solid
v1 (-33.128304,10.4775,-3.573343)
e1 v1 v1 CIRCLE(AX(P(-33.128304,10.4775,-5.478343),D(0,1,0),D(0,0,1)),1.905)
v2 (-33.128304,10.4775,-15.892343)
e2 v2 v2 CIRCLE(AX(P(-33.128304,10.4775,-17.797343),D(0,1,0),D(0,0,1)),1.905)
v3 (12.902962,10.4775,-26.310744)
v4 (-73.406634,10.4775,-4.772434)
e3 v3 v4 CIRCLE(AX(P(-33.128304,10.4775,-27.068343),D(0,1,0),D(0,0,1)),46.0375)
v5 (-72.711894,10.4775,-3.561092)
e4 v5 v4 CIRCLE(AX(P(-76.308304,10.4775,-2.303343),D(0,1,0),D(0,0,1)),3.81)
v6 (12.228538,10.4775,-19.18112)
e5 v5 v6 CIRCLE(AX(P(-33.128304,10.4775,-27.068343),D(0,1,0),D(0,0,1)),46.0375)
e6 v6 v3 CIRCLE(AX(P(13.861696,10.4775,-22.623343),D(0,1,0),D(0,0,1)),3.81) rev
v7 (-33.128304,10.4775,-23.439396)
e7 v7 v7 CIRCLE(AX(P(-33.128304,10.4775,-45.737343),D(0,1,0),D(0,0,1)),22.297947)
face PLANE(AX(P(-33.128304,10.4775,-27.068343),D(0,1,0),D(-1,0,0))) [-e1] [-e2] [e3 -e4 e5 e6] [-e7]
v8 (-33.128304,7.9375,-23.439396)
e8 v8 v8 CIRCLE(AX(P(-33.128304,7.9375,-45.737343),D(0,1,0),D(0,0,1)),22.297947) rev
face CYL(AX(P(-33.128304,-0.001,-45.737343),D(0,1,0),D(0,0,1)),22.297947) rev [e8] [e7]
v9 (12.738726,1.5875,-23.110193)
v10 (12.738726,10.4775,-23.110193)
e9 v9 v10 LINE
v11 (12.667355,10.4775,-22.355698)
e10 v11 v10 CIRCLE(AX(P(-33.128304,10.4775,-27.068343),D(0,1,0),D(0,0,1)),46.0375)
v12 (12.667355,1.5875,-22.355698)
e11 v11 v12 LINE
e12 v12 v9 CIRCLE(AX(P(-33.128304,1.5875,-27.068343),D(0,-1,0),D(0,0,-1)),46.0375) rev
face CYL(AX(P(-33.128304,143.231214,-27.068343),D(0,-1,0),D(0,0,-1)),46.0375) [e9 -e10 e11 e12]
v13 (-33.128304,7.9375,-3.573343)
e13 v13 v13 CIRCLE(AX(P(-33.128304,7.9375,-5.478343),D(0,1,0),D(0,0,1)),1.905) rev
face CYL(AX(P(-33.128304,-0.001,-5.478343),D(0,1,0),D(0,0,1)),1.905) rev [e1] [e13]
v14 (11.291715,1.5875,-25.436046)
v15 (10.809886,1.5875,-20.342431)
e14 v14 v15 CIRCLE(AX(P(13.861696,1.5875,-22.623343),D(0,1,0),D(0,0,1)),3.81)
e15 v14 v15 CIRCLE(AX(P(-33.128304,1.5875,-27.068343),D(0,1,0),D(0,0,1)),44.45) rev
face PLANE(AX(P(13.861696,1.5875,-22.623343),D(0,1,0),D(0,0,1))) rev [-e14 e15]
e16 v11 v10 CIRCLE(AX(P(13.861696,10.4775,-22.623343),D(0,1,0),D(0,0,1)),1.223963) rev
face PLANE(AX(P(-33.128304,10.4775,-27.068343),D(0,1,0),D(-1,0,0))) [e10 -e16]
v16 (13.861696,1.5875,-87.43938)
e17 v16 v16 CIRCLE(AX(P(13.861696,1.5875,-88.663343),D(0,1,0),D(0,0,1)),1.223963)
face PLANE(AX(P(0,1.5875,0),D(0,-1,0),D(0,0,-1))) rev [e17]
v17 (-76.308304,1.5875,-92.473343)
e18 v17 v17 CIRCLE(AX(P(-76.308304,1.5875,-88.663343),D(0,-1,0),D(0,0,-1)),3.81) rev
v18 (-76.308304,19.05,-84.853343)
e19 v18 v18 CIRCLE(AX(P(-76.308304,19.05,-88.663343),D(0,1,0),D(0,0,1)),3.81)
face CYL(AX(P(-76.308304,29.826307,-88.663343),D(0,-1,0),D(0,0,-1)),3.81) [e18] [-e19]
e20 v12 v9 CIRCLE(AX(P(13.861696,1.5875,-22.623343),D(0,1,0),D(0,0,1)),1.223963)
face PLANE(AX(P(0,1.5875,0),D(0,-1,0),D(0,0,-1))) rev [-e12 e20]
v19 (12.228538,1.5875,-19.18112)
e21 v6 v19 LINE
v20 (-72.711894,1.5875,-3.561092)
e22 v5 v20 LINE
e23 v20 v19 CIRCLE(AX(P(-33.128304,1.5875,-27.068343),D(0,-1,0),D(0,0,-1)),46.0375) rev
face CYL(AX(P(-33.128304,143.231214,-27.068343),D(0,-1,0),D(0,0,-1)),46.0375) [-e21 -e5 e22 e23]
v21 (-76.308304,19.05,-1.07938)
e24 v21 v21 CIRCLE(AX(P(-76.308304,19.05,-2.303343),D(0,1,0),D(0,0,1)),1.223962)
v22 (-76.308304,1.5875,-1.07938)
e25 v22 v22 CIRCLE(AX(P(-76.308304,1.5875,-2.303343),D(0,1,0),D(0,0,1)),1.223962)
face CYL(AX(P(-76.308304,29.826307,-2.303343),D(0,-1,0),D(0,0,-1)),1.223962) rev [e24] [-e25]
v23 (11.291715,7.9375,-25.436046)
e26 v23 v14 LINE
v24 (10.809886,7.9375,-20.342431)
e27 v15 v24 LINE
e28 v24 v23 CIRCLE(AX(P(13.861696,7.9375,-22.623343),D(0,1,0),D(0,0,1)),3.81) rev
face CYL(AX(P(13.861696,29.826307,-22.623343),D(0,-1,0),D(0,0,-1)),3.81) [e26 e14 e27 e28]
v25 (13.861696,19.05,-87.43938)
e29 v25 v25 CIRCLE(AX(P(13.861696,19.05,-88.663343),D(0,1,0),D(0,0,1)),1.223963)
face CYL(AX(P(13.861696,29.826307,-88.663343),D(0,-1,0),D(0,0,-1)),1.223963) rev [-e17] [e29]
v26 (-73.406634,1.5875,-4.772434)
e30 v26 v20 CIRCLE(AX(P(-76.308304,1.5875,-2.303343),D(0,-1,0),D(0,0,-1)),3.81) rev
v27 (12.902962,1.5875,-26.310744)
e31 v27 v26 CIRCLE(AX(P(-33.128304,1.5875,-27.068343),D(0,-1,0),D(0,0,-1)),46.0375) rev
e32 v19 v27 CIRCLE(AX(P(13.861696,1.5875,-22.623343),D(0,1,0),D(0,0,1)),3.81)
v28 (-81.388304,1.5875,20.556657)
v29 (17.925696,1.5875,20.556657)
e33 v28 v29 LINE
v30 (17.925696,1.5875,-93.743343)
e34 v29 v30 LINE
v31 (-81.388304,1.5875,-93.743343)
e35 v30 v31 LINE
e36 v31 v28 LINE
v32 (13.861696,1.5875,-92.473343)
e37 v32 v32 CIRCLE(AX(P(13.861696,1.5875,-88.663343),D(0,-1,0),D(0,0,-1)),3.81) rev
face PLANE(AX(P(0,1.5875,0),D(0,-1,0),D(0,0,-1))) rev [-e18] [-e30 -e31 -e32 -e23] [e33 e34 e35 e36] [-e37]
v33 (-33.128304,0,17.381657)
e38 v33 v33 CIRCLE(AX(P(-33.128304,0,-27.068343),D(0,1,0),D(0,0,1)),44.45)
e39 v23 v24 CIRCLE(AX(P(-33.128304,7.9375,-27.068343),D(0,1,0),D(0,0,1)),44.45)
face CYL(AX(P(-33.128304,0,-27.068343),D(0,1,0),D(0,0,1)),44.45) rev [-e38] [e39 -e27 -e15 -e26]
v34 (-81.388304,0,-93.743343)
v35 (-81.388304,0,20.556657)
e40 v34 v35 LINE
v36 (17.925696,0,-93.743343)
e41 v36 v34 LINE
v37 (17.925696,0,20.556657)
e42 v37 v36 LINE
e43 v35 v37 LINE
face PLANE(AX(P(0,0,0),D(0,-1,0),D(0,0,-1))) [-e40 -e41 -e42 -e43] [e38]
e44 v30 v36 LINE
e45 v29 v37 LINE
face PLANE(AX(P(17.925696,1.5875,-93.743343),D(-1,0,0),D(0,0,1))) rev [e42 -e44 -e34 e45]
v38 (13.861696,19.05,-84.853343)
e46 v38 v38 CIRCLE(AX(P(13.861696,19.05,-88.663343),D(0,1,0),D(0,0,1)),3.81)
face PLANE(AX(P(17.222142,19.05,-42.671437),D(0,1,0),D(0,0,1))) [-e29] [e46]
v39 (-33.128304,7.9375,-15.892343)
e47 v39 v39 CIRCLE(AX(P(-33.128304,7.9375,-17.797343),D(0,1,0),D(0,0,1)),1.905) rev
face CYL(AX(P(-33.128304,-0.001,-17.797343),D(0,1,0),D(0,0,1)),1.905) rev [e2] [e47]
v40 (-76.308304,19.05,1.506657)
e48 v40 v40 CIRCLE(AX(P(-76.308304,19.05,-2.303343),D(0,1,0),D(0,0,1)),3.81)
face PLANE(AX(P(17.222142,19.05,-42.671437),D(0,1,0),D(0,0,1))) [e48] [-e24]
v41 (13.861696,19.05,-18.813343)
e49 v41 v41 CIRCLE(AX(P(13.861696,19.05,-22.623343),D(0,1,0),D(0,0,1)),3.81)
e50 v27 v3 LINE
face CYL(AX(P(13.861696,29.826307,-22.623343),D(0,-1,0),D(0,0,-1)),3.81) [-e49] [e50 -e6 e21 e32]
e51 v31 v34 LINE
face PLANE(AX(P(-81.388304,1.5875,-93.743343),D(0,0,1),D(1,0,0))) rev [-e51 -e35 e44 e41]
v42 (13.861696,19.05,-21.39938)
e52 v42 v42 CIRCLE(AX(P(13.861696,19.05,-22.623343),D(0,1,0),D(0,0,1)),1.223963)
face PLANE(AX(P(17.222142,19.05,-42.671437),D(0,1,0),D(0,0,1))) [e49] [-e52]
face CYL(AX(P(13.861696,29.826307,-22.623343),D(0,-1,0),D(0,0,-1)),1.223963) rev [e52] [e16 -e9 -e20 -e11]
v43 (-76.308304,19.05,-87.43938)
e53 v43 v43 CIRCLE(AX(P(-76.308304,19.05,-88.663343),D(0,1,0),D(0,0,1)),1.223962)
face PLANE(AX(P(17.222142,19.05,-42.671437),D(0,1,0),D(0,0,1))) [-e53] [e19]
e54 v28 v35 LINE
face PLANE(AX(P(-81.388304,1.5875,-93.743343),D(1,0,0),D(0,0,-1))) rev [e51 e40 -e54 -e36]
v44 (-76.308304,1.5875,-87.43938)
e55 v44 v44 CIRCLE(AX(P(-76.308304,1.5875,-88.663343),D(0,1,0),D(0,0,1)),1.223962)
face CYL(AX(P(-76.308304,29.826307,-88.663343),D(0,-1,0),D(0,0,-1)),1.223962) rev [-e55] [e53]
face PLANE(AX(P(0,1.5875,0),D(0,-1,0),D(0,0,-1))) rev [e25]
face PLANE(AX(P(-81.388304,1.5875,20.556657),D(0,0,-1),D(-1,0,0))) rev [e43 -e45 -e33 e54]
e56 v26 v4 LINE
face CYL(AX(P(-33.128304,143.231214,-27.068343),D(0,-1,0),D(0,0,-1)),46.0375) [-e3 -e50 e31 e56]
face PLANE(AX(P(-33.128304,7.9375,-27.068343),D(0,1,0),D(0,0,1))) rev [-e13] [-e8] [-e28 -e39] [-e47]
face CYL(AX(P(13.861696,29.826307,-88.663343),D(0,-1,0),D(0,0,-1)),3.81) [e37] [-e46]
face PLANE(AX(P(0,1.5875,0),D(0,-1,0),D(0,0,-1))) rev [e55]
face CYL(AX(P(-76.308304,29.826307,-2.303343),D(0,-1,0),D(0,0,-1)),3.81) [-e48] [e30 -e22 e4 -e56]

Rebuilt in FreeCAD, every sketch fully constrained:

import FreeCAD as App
import Part
import Sketcher
Q = App.Units.Quantity

doc = App.newDocument("Part")
body = doc.addObject("PartDesign::Body", "Body")

sketch1 = body.newObject("Sketcher::SketchObject", "Sketch")
sketch1.AttachmentSupport = (doc.getObject("XZ_Plane"), [""])
sketch1.MapMode = "FlatFace"
sketch1.addGeometry(Part.LineSegment(App.Vector(-81.388304, -93.743343, 0), App.Vector(-81.388304, 20.556657, 0)), False)
sketch1.addGeometry(Part.LineSegment(App.Vector(-81.388304, 20.556657, 0), App.Vector(17.925696, 20.556657, 0)), False)
sketch1.addGeometry(Part.LineSegment(App.Vector(17.925696, 20.556657, 0), App.Vector(17.925696, -93.743343, 0)), False)
sketch1.addGeometry(Part.LineSegment(App.Vector(17.925696, -93.743343, 0), App.Vector(-81.388304, -93.743343, 0)), False)
sketch1.addConstraint(Sketcher.Constraint("Coincident", 0, 2, 1, 1))
sketch1.addConstraint(Sketcher.Constraint("Coincident", 1, 2, 2, 1))
sketch1.addConstraint(Sketcher.Constraint("Coincident", 2, 2, 3, 1))
sketch1.addConstraint(Sketcher.Constraint("Coincident", 3, 2, 0, 1))
sketch1.addConstraint(Sketcher.Constraint("Vertical", 0))
sketch1.addConstraint(Sketcher.Constraint("Horizontal", 1))
sketch1.addConstraint(Sketcher.Constraint("Vertical", 2))
sketch1.addConstraint(Sketcher.Constraint("Horizontal", 3))
sketch1.addConstraint(Sketcher.Constraint("DistanceY", 0, 1, 0, 2, Q("4.5 in")))
sketch1.addConstraint(Sketcher.Constraint("DistanceX", 1, 1, 1, 2, Q("3.91 in")))
sketch1.addConstraint(Sketcher.Constraint("DistanceX", 0, 2, -1, 1, 81.388304))
sketch1.addConstraint(Sketcher.Constraint("DistanceY", -1, 1, 0, 2, 20.556657))
pad1 = body.newObject("PartDesign::Pad", "Pad")
pad1.Profile = sketch1
pad1.Length = Q("0.0625 in")
pad1.Reversed = True
body2 = doc.addObject("PartDesign::Body", "Body001")

sketch2 = body2.newObject("Sketcher::SketchObject", "Sketch001")
sketch2.AttachmentSupport = (doc.getObject("XZ_Plane001"), [""])
sketch2.MapMode = "FlatFace"
sketch2.addGeometry(Part.Circle(App.Vector(-33.128304, -27.068343, 0), App.Vector(0, 0, 1), 46.0375), False)
sketch2.addConstraint(Sketcher.Constraint("Diameter", 0, Q("3.625 in")))
sketch2.addConstraint(Sketcher.Constraint("DistanceX", 0, 3, -1, 1, 33.128304))
sketch2.addConstraint(Sketcher.Constraint("DistanceY", 0, 3, -1, 1, 27.068343))
pad2 = body2.newObject("PartDesign::Pad", "Pad001")
pad2.Profile = sketch2
pad2.Length = Q("0.4125 in")
pad2.Reversed = True
body3 = doc.addObject("PartDesign::Body", "Body002")

sketch3 = body3.newObject("Sketcher::SketchObject", "Sketch002")
sketch3.AttachmentSupport = (doc.getObject("XZ_Plane002"), [""])
sketch3.MapMode = "FlatFace"
sketch3.AttachmentOffset = App.Placement(App.Vector(0, 0, -0.3125 * 25.4), App.Rotation())
sketch3.addGeometry(Part.Circle(App.Vector(-33.128304, -27.068343, 0), App.Vector(0, 0, 1), 44.45), False)
sketch3.addConstraint(Sketcher.Constraint("Diameter", 0, Q("3.5 in")))
sketch3.addConstraint(Sketcher.Constraint("DistanceX", 0, 3, -1, 1, 33.128304))
sketch3.addConstraint(Sketcher.Constraint("DistanceY", 0, 3, -1, 1, 27.068343))
pad3 = body3.newObject("PartDesign::Pad", "Pad002")
pad3.Profile = sketch3
pad3.Length = 8.9375
doc.recompute()

body4 = doc.addObject("PartDesign::Body", "Body003")
body4.BaseFeature = body3
boolean = body.newObject("PartDesign::Boolean", "Boolean")
boolean.Type = "Cut"
boolean.addObjects([body4])
doc.recompute()

boolean2 = body2.newObject("PartDesign::Boolean", "Boolean001")
boolean2.Type = "Cut"
boolean2.addObjects([body3])

sketch4 = body2.newObject("Sketcher::SketchObject", "Sketch003")
sketch4.AttachmentSupport = (doc.getObject("XZ_Plane001"), [""])
sketch4.MapMode = "FlatFace"
sketch4.AttachmentOffset = App.Placement(App.Vector(0, 0, -0.4125 * 25.4), App.Rotation())
sketch4.addGeometry(Part.Circle(App.Vector(-33.128304, -17.797343, 0), App.Vector(0, 0, 1), 1.905), False)
sketch4.addGeometry(Part.Circle(App.Vector(-33.128304, -5.478343, 0), App.Vector(0, 0, 1), 1.905), False)
sketch4.addConstraint(Sketcher.Constraint("Equal", 0, 1))
sketch4.addConstraint(Sketcher.Constraint("Vertical", 0, 3, 1, 3))
sketch4.addConstraint(Sketcher.Constraint("Diameter", 0, Q("0.15 in")))
sketch4.addConstraint(Sketcher.Constraint("DistanceY", 0, 3, 1, 3, Q("0.485 in")))
sketch4.addConstraint(Sketcher.Constraint("DistanceX", 0, 3, -1, 1, 33.128304))
sketch4.addConstraint(Sketcher.Constraint("DistanceY", 0, 3, -1, 1, 17.797343))
pocket1 = body2.newObject("PartDesign::Pocket", "Pocket")
pocket1.Profile = sketch4
pocket1.Length = Q("0.1 in")
pocket1.Reversed = True
doc.recompute()

boolean3 = body.newObject("PartDesign::Boolean", "Boolean002")
boolean3.Type = "Fuse"
boolean3.addObjects([body2])

sketch5 = body.newObject("Sketcher::SketchObject", "Sketch004")
sketch5.AttachmentSupport = (doc.getObject("XZ_Plane"), [""])
sketch5.MapMode = "FlatFace"
sketch5.AttachmentOffset = App.Placement(App.Vector(0, 0, -0.0625 * 25.4), App.Rotation())
sketch5.addGeometry(Part.Circle(App.Vector(-76.308304, -2.303343, 0), App.Vector(0, 0, 1), 3.81), False)
sketch5.addGeometry(Part.Circle(App.Vector(-76.308304, -2.303343, 0), App.Vector(0, 0, 1), 1.223963), False)
sketch5.addGeometry(Part.Circle(App.Vector(13.861696, -22.623343, 0), App.Vector(0, 0, 1), 3.81), False)
sketch5.addGeometry(Part.Circle(App.Vector(13.861696, -22.623343, 0), App.Vector(0, 0, 1), 1.223963), False)
sketch5.addGeometry(Part.Circle(App.Vector(-76.308304, -88.663343, 0), App.Vector(0, 0, 1), 3.81), False)
sketch5.addGeometry(Part.Circle(App.Vector(-76.308304, -88.663343, 0), App.Vector(0, 0, 1), 1.223963), False)
sketch5.addGeometry(Part.Circle(App.Vector(13.861696, -88.663343, 0), App.Vector(0, 0, 1), 3.81), False)
sketch5.addGeometry(Part.Circle(App.Vector(13.861696, -88.663343, 0), App.Vector(0, 0, 1), 1.223963), False)
sketch5.addConstraint(Sketcher.Constraint("Coincident", 1, 3, 0, 3))
sketch5.addConstraint(Sketcher.Constraint("Coincident", 3, 3, 2, 3))
sketch5.addConstraint(Sketcher.Constraint("Coincident", 5, 3, 4, 3))
sketch5.addConstraint(Sketcher.Constraint("Coincident", 7, 3, 6, 3))
sketch5.addConstraint(Sketcher.Constraint("Equal", 0, 2))
sketch5.addConstraint(Sketcher.Constraint("Equal", 1, 3))
sketch5.addConstraint(Sketcher.Constraint("Equal", 2, 4))
sketch5.addConstraint(Sketcher.Constraint("Equal", 3, 5))
sketch5.addConstraint(Sketcher.Constraint("Equal", 4, 6))
sketch5.addConstraint(Sketcher.Constraint("Equal", 5, 7))
sketch5.addConstraint(Sketcher.Constraint("Horizontal", 5, 3, 6, 3))
sketch5.addConstraint(Sketcher.Constraint("Vertical", 1, 3, 4, 3))
sketch5.addConstraint(Sketcher.Constraint("Vertical", 3, 3, 6, 3))
sketch5.addConstraint(Sketcher.Constraint("Diameter", 0, Q("0.3 in")))
sketch5.addConstraint(Sketcher.Constraint("DistanceY", 2, 3, 0, 3, Q("0.8 in")))
sketch5.addConstraint(Sketcher.Constraint("DistanceY", 4, 3, 0, 3, Q("3.4 in")))
sketch5.addConstraint(Sketcher.Constraint("DistanceX", 0, 3, 2, 3, Q("3.55 in")))
sketch5.addConstraint(Sketcher.Constraint("Diameter", 1, 2.447925))
sketch5.addConstraint(Sketcher.Constraint("DistanceX", 0, 3, -1, 1, 76.308304))
sketch5.addConstraint(Sketcher.Constraint("DistanceY", 0, 3, -1, 1, 2.303343))
pad4 = body.newObject("PartDesign::Pad", "Pad003")
pad4.Profile = sketch5
pad4.Length = Q("0.6875 in")
pad4.Reversed = True

sketch6 = body.newObject("Sketcher::SketchObject", "Sketch005")
sketch6.AttachmentSupport = (doc.getObject("XZ_Plane"), [""])
sketch6.MapMode = "FlatFace"
sketch6.AttachmentOffset = App.Placement(App.Vector(0, 0, -0.4125 * 25.4), App.Rotation())
sketch6.addGeometry(Part.Circle(App.Vector(-33.128304, -45.737343, 0), App.Vector(0, 0, 1), 22.297947), False)
sketch6.addConstraint(Sketcher.Constraint("Diameter", 0, 44.595895))
sketch6.addConstraint(Sketcher.Constraint("DistanceX", 0, 3, -1, 1, 33.128304))
sketch6.addConstraint(Sketcher.Constraint("DistanceY", 0, 3, -1, 1, 45.737343))
pocket2 = body.newObject("PartDesign::Pocket", "Pocket001")
pocket2.Profile = sketch6
pocket2.Type = "UpToFirst"
pocket2.Reversed = True

doc.recompute()
